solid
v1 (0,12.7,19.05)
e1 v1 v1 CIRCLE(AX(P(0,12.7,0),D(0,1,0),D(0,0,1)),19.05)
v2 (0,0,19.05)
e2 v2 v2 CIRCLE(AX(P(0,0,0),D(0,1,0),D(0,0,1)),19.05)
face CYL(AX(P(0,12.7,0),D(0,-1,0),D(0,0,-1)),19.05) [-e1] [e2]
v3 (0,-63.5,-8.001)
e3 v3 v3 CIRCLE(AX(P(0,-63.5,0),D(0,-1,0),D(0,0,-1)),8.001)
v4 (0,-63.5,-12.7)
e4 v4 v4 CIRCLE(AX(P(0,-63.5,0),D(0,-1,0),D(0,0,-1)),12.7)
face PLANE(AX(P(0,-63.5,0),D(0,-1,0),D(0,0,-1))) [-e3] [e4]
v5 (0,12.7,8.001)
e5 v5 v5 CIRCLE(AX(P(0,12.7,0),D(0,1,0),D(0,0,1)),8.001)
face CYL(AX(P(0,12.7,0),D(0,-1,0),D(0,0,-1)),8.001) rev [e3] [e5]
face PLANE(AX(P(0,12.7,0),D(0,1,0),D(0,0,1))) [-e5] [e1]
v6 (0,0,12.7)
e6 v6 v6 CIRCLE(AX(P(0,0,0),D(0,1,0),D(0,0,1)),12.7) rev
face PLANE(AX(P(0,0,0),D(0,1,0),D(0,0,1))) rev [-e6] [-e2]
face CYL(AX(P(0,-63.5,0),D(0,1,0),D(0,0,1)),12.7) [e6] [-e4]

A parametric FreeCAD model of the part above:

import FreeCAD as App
import Part
import Sketcher
from FreeCAD import Vector
Q = App.Units.Quantity

doc = App.newDocument("Part")
body = doc.addObject("PartDesign::Body", "Body")

sketch1 = body.newObject("Sketcher::SketchObject", "Sketch")
sketch1.AttachmentSupport = (doc.getObject("XZ_Plane"), [""])
sketch1.MapMode = "FlatFace"
sketch1.addGeometry(Part.Circle(Vector(0, 0, 0), Vector(0, 0, 1), 19), False)
sketch1.addGeometry(Part.Circle(Vector(0, 0, 0), Vector(0, 0, 1), 8), False)
sketch1.addConstraint(Sketcher.Constraint("Coincident", 0, 3, -1, 1))
sketch1.addConstraint(Sketcher.Constraint("Coincident", 1, 3, -1, 1))
sketch1.addConstraint(Sketcher.Constraint("Diameter", 0, Q("1.5 in")))
sketch1.addConstraint(Sketcher.Constraint("Diameter", 1, Q("0.63 in")))
pad1 = body.newObject("PartDesign::Pad", "Pad")
pad1.Profile = sketch1
pad1.Length = Q("0.5 in")
pad1.Reversed = True

sketch2 = body.newObject("Sketcher::SketchObject", "Sketch001")
sketch2.AttachmentSupport = (doc.getObject("XZ_Plane"), [""])
sketch2.MapMode = "FlatFace"
sketch2.AttachmentOffset = App.Placement(Vector(0, 0, 2.5 * 25.4), App.Rotation())
sketch2.addGeometry(Part.Circle(Vector(0, 0, 0), Vector(0, 0, 1), 13), False)
sketch2.addGeometry(Part.Circle(Vector(0, 0, 0), Vector(0, 0, 1), 8), False)
sketch2.addConstraint(Sketcher.Constraint("Coincident", 0, 3, -1, 1))
sketch2.addConstraint(Sketcher.Constraint("Coincident", 1, 3, -1, 1))
sketch2.addConstraint(Sketcher.Constraint("Diameter", 0, Q("1 in")))
sketch2.addConstraint(Sketcher.Constraint("Diameter", 1, Q("0.63 in")))
pad2 = body.newObject("PartDesign::Pad", "Pad001")
pad2.Profile = sketch2
pad2.Length = Q("2.5 in")
pad2.Reversed = True

doc.recompute()
